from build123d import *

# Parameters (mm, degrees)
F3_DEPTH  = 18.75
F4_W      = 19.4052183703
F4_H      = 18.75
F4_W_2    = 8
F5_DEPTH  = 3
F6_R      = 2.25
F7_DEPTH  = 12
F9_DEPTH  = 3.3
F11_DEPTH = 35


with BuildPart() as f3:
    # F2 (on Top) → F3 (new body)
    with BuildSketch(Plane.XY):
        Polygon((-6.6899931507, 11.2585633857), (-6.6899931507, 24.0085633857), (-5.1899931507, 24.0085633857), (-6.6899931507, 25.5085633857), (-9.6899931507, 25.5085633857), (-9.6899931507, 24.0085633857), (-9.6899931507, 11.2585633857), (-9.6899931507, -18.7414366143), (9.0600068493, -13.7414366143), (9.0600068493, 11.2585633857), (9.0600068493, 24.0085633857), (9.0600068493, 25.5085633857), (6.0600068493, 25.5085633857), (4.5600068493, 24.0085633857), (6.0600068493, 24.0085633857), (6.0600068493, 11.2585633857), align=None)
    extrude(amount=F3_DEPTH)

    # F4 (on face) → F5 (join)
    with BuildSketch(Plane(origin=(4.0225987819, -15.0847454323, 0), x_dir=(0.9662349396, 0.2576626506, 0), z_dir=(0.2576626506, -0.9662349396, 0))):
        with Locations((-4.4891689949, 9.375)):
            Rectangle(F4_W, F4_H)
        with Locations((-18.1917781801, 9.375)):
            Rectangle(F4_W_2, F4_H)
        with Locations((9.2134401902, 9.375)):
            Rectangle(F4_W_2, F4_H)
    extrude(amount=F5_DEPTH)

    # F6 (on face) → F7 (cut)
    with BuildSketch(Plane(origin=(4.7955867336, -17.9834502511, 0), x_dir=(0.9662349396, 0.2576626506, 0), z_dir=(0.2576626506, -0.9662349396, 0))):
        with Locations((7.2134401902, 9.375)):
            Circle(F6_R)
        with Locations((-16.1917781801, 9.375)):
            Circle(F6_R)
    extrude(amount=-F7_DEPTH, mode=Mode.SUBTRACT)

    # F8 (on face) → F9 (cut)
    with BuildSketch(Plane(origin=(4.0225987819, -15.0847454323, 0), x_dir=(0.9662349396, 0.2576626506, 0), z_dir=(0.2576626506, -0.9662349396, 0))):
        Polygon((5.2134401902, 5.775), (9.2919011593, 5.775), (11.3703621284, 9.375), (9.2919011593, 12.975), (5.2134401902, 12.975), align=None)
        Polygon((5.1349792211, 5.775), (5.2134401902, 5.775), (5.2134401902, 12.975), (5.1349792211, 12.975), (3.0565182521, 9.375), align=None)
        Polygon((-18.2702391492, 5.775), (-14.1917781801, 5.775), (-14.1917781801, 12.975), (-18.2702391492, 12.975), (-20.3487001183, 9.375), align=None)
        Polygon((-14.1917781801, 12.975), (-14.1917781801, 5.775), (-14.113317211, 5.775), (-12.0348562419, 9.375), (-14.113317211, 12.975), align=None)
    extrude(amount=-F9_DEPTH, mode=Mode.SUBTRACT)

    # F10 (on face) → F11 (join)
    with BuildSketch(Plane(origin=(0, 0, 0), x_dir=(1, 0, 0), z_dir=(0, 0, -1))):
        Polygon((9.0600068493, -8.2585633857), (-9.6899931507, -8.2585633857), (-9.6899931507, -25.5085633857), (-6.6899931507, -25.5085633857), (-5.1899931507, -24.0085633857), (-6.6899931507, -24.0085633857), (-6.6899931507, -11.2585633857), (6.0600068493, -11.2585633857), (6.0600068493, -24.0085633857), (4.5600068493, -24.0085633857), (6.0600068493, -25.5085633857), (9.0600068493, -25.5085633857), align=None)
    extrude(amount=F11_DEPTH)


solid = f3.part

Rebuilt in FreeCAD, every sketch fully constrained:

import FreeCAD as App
import Part
import Sketcher

V = App.Vector
Q = App.Units.Quantity


def add_polygon(sketch, points):
    """Adds a closed chain of lines whose ends are joined by coincident constraints."""
    first, n = sketch.GeometryCount, len(points)
    for a, b in zip(points, points[1:] + points[:1]):
        sketch.addGeometry(Part.LineSegment(App.Vector(*a, 0), App.Vector(*b, 0)), False)
    for i in range(n):
        sketch.addConstraint(Sketcher.Constraint("Coincident", first + i, 2, first + (i + 1) % n, 1))

doc = App.newDocument("Part")
params = doc.addObject("Spreadsheet::Sheet", "Params")
for row, (alias, value) in enumerate([
    ("sketch1_width", "3 mm"),
    ("sketch1_width2", "1.5 mm"),
    ("sketch1_width3", "12.75 mm"),
    ("sketch1_height", "44.25 mm"),
    ("pad1_length", "18.75 mm"),
    ("sketch2_height", "18.75 mm"),
    ("pad2_length", "3 mm"),
    ("sketch3_diameter", "4.5 mm"),
    ("pocket1_length", "12 mm"),
    ("pocket2_length", "3.3 mm"),
    ("sketch5_width", "3 mm"),
    ("sketch5_width2", "1.5 mm"),
    ("sketch5_width3", "18.75 mm"),
    ("pad3_length", "35 mm"),
], start=1):
    params.set(f"A{row}", alias)
    params.set(f"B{row}", "=" + value)
    params.setAlias(f"B{row}", alias)

body = doc.addObject("PartDesign::Body", "Body")

# Sketch on XY plane
sketch1 = doc.addObject("Sketcher::SketchObject", "Sketch")
body.addObject(sketch1)
sketch1.AttachmentSupport = (doc.XY_Plane, [""])
sketch1.MapMode = "FlatFace"
add_polygon(sketch1, [(-6.7, 11.3), (-6.7, 24), (-5.2, 24), (-6.7, 25.5), (-9.7, 25.5), (-9.7, -18.7), (9.1, -13.7), (9.1, 25.5), (6.1, 25.5), (4.6, 24), (6.1, 24), (6.1, 11.3)])  # lines 0-11
sketch1.addConstraint(Sketcher.Constraint("Vertical", 0))
sketch1.addConstraint(Sketcher.Constraint("Horizontal", 1))
sketch1.addConstraint(Sketcher.Constraint("Horizontal", 3))
sketch1.addConstraint(Sketcher.Constraint("Vertical", 4))
sketch1.addConstraint(Sketcher.Constraint("Vertical", 6))
sketch1.addConstraint(Sketcher.Constraint("Horizontal", 7))
sketch1.addConstraint(Sketcher.Constraint("Horizontal", 9))
sketch1.addConstraint(Sketcher.Constraint("Vertical", 10))
sketch1.addConstraint(Sketcher.Constraint("Horizontal", 11))
sketch1.addConstraint(Sketcher.Constraint("Perpendicular", 2, 8))
sketch1.addConstraint(Sketcher.Constraint("Horizontal", 3, 2, 6, 2))
sketch1.addConstraint(Sketcher.Constraint("Horizontal", 1, 2, 8, 2))
sketch1.addConstraint(Sketcher.Constraint("Vertical", 0, 2, 2, 2))
sketch1.addConstraint(Sketcher.Constraint("Vertical", 7, 2, 9, 2))
sketch1.addConstraint(Sketcher.Constraint("Equal", 3, 7))
sketch1.addConstraint(Sketcher.Constraint("Equal", 1, 9))
sketch1.addConstraint(Sketcher.Constraint("Equal", 11, 0))
sketch1.addConstraint(Sketcher.Constraint("DistanceX", 3, 2, 3, 1, Q("3 mm")))
sketch1.addConstraint(Sketcher.Constraint("DistanceX", 1, 1, 1, 2, Q("1.5 mm")))
sketch1.addConstraint(Sketcher.Constraint("DistanceY", 4, 2, 5, 2, Q("5 mm")))
sketch1.addConstraint(Sketcher.Constraint("DistanceX", 11, 2, 11, 1, Q("12.75 mm")))
sketch1.addConstraint(Sketcher.Constraint("DistanceY", 4, 2, 4, 1, Q("44.25 mm")))
sketch1.addConstraint(Sketcher.Constraint("DistanceX", 0, 2, -1, 1, Q("6.689993 mm")))
sketch1.addConstraint(Sketcher.Constraint("DistanceY", -1, 1, 0, 2, Q("24.008563 mm")))
sketch1.setExpression("Constraints[29]", "Params.sketch1_width")
sketch1.setExpression("Constraints[30]", "Params.sketch1_width2")
sketch1.setExpression("Constraints[32]", "Params.sketch1_width3")
sketch1.setExpression("Constraints[33]", "Params.sketch1_height")
pad1 = doc.addObject("PartDesign::Pad", "Pad")
body.addObject(pad1)
pad1.Profile = sketch1
pad1.setExpression("Length", "Params.pad1_length")

# Sketch on an angled plane
sketch2 = doc.addObject("Sketcher::SketchObject", "Sketch001")
body.addObject(sketch2)
sketch2.Placement = App.Placement(V(4.022599, -15.084745, 0), App.Rotation(V(0.96623494, 0.257662651, 0), V(0, 0, 1.000000001), V(0.257662651, -0.96623494, 0), "ZXY"))
add_polygon(sketch2, [(-22, 19), (-22, 0), (13, 0), (13, 19)])  # lines 0-3
sketch2.addConstraint(Sketcher.Constraint("Vertical", 0))
sketch2.addConstraint(Sketcher.Constraint("Horizontal", 1))
sketch2.addConstraint(Sketcher.Constraint("Vertical", 2))
sketch2.addConstraint(Sketcher.Constraint("Horizontal", 3))
sketch2.addConstraint(Sketcher.Constraint("PointOnObject", 0, 2, -1))
sketch2.addConstraint(Sketcher.Constraint("DistanceY", 0, 2, 0, 1, Q("18.75 mm")))
sketch2.addConstraint(Sketcher.Constraint("DistanceX", 1, 1, 1, 2, Q("35.405218 mm")))
sketch2.addConstraint(Sketcher.Constraint("DistanceX", 0, 2, -1, 1, Q("22.191778 mm")))
sketch2.setExpression("Constraints[9]", "Params.sketch2_height")
pad2 = doc.addObject("PartDesign::Pad", "Pad001")
body.addObject(pad2)
pad2.Profile = sketch2
pad2.setExpression("Length", "Params.pad2_length")

# Sketch on an angled plane
sketch3 = doc.addObject("Sketcher::SketchObject", "Sketch002")
body.addObject(sketch3)
sketch3.Placement = App.Placement(V(4.795587, -17.98345, 0), App.Rotation(V(0.96623494, 0.257662651, 0), V(0, 0, 1.000000001), V(0.257662651, -0.96623494, 0), "ZXY"))
sketch3.addGeometry(Part.Circle(V(7.2, 9.4, 0), V(0, 0, 1), 2.2), False)
sketch3.addGeometry(Part.Circle(V(-16.2, 9.4, 0), V(0, 0, 1), 2.2), False)
sketch3.addConstraint(Sketcher.Constraint("Equal", 0, 1))
sketch3.addConstraint(Sketcher.Constraint("Horizontal", 0, 3, 1, 3))
sketch3.addConstraint(Sketcher.Constraint("Diameter", 0, Q("4.5 mm")))
sketch3.addConstraint(Sketcher.Constraint("DistanceY", -1, 1, 0, 3, Q("9.375 mm")))
sketch3.addConstraint(Sketcher.Constraint("DistanceX", -1, 1, 0, 3, Q("7.21344 mm")))
sketch3.addConstraint(Sketcher.Constraint("DistanceX", 1, 3, -1, 1, Q("16.191778 mm")))
sketch3.setExpression("Constraints[2]", "Params.sketch3_diameter")
pocket1 = doc.addObject("PartDesign::Pocket", "Pocket")
body.addObject(pocket1)
pocket1.Profile = sketch3
pocket1.setExpression("Length", "Params.pocket1_length")

# Sketch on an angled plane
sketch4 = doc.addObject("Sketcher::SketchObject", "Sketch003")
body.addObject(sketch4)
sketch4.Placement = App.Placement(V(4.022599, -15.084745, 0), App.Rotation(V(0.96623494, 0.257662651, 0), V(0, 0, 1.000000001), V(0.257662651, -0.96623494, 0), "ZXY"))
add_polygon(sketch4, [(9.3, 5.8), (11.4, 9.4), (9.3, 13), (5.1, 13), (3.1, 9.4), (5.1, 5.8)])  # lines 0-5
add_polygon(sketch4, [(-18.3, 5.8), (-14.1, 5.8), (-12, 9.4), (-14.1, 13), (-18.3, 13), (-20.3, 9.4)])  # lines 6-11
sketch4.addConstraint(Sketcher.Constraint("Horizontal", 2))
sketch4.addConstraint(Sketcher.Constraint("Horizontal", 5))
sketch4.addConstraint(Sketcher.Constraint("Horizontal", 6))
sketch4.addConstraint(Sketcher.Constraint("Horizontal", 9))
sketch4.addConstraint(Sketcher.Constraint("Parallel", 0, 3))
sketch4.addConstraint(Sketcher.Constraint("Parallel", 1, 4))
sketch4.addConstraint(Sketcher.Constraint("Parallel", 3, 7))
sketch4.addConstraint(Sketcher.Constraint("Parallel", 4, 8))
sketch4.addConstraint(Sketcher.Constraint("Parallel", 7, 10))
sketch4.addConstraint(Sketcher.Constraint("Parallel", 8, 11))
sketch4.addConstraint(Sketcher.Constraint("Horizontal", 0, 2, 3, 2))
sketch4.addConstraint(Sketcher.Constraint("Horizontal", 5, 2, 6, 2))
sketch4.addConstraint(Sketcher.Constraint("Horizontal", 3, 2, 7, 2))
sketch4.addConstraint(Sketcher.Constraint("Horizontal", 2, 2, 8, 2))
sketch4.addConstraint(Sketcher.Constraint("Horizontal", 7, 2, 10, 2))
sketch4.addConstraint(Sketcher.Constraint("Vertical", 2, 2, 4, 2))
sketch4.addConstraint(Sketcher.Constraint("Vertical", 1, 2, 5, 2))
sketch4.addConstraint(Sketcher.Constraint("Equal", 5, 6))
sketch4.addConstraint(Sketcher.Constraint("Angle", 0, Q("60 deg")))
sketch4.addConstraint(Sketcher.Constraint("DistanceY", 0, 2, 1, 2, Q("3.6 mm")))
sketch4.addConstraint(Sketcher.Constraint("DistanceY", -1, 1, 0, 2, Q("9.375 mm")))
sketch4.addConstraint(Sketcher.Constraint("DistanceX", 2, 2, 2, 1, Q("4.156922 mm")))
sketch4.addConstraint(Sketcher.Constraint("DistanceX", -1, 1, 1, 2, Q("9.291901 mm")))
sketch4.addConstraint(Sketcher.Constraint("DistanceX", 10, 2, -1, 1, Q("20.3487 mm")))
pocket2 = doc.addObject("PartDesign::Pocket", "Pocket001")
body.addObject(pocket2)
pocket2.Profile = sketch4
pocket2.setExpression("Length", "Params.pocket2_length")

# Sketch on XY plane
sketch5 = doc.addObject("Sketcher::SketchObject", "Sketch004")
body.addObject(sketch5)
sketch5.AttachmentSupport = (doc.XY_Plane, [""])
sketch5.MapMode = "FlatFace"
add_polygon(sketch5, [(9.1, 8.3), (-9.7, 8.3), (-9.7, 25.5), (-6.7, 25.5), (-5.2, 24), (-6.7, 24), (-6.7, 11.3), (6.1, 11.3), (6.1, 24), (4.6, 24), (6.1, 25.5), (9.1, 25.5)])  # lines 0-11
sketch5.addConstraint(Sketcher.Constraint("Horizontal", 0))
sketch5.addConstraint(Sketcher.Constraint("Vertical", 1))
sketch5.addConstraint(Sketcher.Constraint("Horizontal", 2))
sketch5.addConstraint(Sketcher.Constraint("Horizontal", 4))
sketch5.addConstraint(Sketcher.Constraint("Vertical", 5))
sketch5.addConstraint(Sketcher.Constraint("Horizontal", 6))
sketch5.addConstraint(Sketcher.Constraint("Vertical", 7))
sketch5.addConstraint(Sketcher.Constraint("Horizontal", 8))
sketch5.addConstraint(Sketcher.Constraint("Horizontal", 10))
sketch5.addConstraint(Sketcher.Constraint("Vertical", 11))
sketch5.addConstraint(Sketcher.Constraint("Perpendicular", 3, 9))
sketch5.addConstraint(Sketcher.Constraint("Horizontal", 4, 2, 7, 2))
sketch5.addConstraint(Sketcher.Constraint("Horizontal", 2, 2, 9, 2))
sketch5.addConstraint(Sketcher.Constraint("Vertical", 2, 2, 4, 2))
sketch5.addConstraint(Sketcher.Constraint("Vertical", 7, 2, 9, 2))
sketch5.addConstraint(Sketcher.Constraint("Equal", 4, 8))
sketch5.addConstraint(Sketcher.Constraint("Equal", 2, 10))
sketch5.addConstraint(Sketcher.Constraint("Equal", 6, 5))
sketch5.addConstraint(Sketcher.Constraint("DistanceX", 2, 1, 2, 2, Q("3 mm")))
sketch5.addConstraint(Sketcher.Constraint("DistanceX", 4, 2, 4, 1, Q("1.5 mm")))
sketch5.addConstraint(Sketcher.Constraint("DistanceY", 0, 2, 5, 2, Q("3 mm")))
sketch5.addConstraint(Sketcher.Constraint("DistanceX", 0, 2, 0, 1, Q("18.75 mm")))
sketch5.addConstraint(Sketcher.Constraint("DistanceX", 0, 2, -1, 1, Q("9.689993 mm")))
sketch5.addConstraint(Sketcher.Constraint("DistanceY", -1, 1, 0, 2, Q("8.258563 mm")))
sketch5.setExpression("Constraints[30]", "Params.sketch5_width")
sketch5.setExpression("Constraints[31]", "Params.sketch5_width2")
sketch5.setExpression("Constraints[33]", "Params.sketch5_width3")
pad3 = doc.addObject("PartDesign::Pad", "Pad002")
body.addObject(pad3)
pad3.Profile = sketch5
pad3.setExpression("Length", "Params.pad3_length")
pad3.Reversed = True

doc.recompute()
